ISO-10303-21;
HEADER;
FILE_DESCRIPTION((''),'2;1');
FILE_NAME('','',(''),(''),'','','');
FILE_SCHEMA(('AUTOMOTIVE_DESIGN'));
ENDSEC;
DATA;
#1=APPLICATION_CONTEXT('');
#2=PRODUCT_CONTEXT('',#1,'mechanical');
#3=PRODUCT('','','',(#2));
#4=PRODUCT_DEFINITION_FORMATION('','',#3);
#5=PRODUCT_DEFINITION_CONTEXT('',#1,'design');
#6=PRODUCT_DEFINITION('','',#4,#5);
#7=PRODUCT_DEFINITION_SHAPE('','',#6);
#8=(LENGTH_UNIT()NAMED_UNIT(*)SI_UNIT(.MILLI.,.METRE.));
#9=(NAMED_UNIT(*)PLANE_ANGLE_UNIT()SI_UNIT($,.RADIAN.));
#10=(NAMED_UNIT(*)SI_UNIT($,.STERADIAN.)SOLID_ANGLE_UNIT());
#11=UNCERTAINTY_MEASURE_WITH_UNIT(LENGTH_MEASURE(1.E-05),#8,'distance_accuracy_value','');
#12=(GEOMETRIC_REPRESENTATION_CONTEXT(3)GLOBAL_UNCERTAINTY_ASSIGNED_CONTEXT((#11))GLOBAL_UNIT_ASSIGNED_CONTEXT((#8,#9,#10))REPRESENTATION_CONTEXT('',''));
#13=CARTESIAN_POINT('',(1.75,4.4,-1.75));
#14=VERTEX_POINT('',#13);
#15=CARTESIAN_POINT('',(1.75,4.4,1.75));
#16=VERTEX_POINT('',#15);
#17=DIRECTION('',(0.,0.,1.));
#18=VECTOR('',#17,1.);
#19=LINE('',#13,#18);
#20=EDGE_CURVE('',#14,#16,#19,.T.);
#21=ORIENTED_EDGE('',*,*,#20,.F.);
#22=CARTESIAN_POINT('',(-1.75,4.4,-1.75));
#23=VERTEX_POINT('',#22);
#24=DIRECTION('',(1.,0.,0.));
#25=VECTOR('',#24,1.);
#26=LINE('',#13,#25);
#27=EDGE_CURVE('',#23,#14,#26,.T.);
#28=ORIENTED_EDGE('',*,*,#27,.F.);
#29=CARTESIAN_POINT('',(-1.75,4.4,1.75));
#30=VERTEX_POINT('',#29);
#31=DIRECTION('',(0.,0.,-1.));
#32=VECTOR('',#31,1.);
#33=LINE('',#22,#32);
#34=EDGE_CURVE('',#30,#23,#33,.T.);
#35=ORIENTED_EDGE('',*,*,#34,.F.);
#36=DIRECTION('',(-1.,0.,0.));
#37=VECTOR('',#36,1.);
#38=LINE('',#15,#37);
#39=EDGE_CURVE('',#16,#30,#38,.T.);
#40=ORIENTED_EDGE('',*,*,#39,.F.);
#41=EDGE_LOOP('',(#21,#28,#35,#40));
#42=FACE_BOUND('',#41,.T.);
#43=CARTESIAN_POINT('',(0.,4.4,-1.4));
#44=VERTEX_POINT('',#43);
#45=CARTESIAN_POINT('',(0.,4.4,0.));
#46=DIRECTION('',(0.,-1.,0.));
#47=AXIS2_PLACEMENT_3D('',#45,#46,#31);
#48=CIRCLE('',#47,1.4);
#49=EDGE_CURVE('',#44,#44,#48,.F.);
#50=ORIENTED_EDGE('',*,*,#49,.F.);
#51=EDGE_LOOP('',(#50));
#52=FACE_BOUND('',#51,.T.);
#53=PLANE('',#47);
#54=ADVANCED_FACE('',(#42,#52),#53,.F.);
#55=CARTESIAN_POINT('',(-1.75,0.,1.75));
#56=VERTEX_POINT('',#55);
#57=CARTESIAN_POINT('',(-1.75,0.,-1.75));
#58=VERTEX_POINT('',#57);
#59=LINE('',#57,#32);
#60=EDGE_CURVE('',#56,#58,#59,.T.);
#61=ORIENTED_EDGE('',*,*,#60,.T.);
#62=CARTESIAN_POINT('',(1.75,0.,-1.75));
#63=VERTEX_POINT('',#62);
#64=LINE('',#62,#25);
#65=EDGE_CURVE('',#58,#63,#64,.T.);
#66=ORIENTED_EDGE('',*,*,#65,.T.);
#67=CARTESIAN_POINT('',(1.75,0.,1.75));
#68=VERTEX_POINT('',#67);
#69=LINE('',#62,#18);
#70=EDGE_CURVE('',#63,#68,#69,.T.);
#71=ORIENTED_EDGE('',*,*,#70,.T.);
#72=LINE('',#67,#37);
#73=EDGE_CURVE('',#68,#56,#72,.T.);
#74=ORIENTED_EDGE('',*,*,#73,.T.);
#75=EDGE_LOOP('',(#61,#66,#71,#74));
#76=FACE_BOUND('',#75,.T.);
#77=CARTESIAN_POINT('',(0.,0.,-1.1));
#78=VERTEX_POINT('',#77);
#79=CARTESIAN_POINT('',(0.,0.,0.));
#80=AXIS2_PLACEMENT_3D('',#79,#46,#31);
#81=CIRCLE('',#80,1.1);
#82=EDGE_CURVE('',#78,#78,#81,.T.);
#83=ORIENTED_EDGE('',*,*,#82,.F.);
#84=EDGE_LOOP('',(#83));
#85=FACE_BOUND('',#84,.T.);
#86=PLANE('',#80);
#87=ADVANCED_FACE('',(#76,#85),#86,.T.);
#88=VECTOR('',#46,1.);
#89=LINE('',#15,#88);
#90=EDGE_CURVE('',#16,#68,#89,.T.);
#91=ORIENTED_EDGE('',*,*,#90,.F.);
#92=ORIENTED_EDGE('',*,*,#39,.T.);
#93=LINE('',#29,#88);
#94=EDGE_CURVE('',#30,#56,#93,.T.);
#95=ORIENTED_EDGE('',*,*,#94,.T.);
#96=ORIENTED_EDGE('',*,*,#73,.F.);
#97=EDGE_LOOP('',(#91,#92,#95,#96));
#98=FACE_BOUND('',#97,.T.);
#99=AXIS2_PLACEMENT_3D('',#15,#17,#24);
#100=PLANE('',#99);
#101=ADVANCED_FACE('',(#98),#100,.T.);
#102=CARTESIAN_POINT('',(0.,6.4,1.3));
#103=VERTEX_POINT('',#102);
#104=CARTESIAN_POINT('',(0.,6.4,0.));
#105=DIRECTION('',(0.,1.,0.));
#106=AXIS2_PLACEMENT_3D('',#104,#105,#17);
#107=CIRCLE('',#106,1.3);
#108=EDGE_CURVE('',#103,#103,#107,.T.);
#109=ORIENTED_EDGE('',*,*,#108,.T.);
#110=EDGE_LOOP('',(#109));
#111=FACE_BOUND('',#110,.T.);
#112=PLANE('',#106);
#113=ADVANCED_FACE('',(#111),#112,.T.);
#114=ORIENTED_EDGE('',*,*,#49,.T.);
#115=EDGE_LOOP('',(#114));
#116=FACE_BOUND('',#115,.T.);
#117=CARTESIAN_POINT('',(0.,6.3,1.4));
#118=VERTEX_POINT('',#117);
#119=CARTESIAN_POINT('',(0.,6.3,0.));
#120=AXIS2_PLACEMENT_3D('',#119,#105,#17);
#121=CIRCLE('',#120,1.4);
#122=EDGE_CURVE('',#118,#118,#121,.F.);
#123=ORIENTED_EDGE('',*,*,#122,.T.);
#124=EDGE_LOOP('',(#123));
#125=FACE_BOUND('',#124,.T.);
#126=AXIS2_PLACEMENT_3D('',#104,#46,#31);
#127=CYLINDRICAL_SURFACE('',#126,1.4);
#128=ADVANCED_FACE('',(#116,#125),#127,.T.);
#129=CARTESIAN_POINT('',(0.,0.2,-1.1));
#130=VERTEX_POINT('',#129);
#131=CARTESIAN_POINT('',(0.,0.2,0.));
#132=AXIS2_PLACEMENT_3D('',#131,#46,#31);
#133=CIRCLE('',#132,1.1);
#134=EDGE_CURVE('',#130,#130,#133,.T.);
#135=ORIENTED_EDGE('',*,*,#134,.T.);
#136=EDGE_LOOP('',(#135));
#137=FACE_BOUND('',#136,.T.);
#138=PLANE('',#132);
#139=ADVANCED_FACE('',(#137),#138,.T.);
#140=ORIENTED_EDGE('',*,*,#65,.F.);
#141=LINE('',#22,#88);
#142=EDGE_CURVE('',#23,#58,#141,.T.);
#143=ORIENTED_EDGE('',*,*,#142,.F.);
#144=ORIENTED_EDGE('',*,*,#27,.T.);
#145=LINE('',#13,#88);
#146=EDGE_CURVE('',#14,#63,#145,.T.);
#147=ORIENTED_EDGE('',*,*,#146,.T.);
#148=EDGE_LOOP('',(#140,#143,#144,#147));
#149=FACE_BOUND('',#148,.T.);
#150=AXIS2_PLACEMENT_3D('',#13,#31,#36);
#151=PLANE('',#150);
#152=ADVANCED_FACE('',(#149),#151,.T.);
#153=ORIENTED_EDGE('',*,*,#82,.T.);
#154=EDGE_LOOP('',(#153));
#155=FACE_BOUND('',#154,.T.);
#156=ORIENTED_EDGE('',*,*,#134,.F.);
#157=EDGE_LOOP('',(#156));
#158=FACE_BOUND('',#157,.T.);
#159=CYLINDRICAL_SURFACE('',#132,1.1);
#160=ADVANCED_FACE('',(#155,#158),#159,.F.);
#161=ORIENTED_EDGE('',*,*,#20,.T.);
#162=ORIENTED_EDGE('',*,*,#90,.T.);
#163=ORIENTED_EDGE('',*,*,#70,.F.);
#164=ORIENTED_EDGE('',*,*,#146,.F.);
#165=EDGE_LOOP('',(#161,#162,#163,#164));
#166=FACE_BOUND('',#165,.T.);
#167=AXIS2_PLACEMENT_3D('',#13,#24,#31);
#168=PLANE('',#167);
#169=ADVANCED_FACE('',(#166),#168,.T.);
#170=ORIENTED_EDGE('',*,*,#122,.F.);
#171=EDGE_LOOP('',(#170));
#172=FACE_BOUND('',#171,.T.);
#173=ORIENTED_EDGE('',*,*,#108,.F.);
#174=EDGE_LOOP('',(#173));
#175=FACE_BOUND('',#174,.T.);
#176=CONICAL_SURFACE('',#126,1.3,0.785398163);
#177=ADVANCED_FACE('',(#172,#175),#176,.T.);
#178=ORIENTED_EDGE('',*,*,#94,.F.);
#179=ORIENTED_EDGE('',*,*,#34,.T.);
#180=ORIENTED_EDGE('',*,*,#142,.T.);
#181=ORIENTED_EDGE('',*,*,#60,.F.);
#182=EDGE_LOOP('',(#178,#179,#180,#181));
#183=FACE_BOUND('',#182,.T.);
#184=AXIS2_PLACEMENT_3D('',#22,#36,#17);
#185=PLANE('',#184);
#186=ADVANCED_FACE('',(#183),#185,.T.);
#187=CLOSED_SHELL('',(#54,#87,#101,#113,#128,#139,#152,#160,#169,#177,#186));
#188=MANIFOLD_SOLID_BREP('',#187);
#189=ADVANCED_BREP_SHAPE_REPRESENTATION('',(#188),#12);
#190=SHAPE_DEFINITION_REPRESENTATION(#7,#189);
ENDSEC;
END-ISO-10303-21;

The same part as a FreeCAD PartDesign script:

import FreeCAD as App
import Part
import Sketcher
Q = App.Units.Quantity


def edges_at(feature, points):
    """Names of the edges that pass closest to the given points."""
    edges = feature.Shape.Edges
    near = lambda p: min(range(len(edges)), key=lambda i: edges[i].distToShape(Part.Vertex(*p))[0])
    return sorted({f"Edge{near(p) + 1}" for p in points})


def add_polygon(sketch, points):
    """Adds a closed chain of lines whose ends are joined by coincident constraints."""
    first, n = sketch.GeometryCount, len(points)
    for a, b in zip(points, points[1:] + points[:1]):
        sketch.addGeometry(Part.LineSegment(App.Vector(*a, 0), App.Vector(*b, 0)), False)
    for i in range(n):
        sketch.addConstraint(Sketcher.Constraint("Coincident", first + i, 2, first + (i + 1) % n, 1))

doc = App.newDocument("Part")
body = doc.addObject("PartDesign::Body", "Body")

# Sketch on XZ plane
sketch1 = body.newObject("Sketcher::SketchObject", "Sketch")
sketch1.AttachmentSupport = (doc.getObject("XZ_Plane"), [""])
sketch1.MapMode = "FlatFace"
add_polygon(sketch1, [(-1.5, -1.5), (-1.5, 1.5), (1.5, 1.5), (1.5, -1.5)])  # lines 0-3
sketch1.addConstraint([
    Sketcher.Constraint("Vertical", 0),
    Sketcher.Constraint("Horizontal", 1),
    Sketcher.Constraint("Vertical", 2),
    Sketcher.Constraint("Horizontal", 3),
    Sketcher.Constraint("Symmetric", 0, 2, 2, 2, -1, 1),
    Sketcher.Constraint("Equal", 3, 0),
    Sketcher.Constraint("DistanceX", 1, 1, 1, 2, Q("3 mm")),
])
pad1 = body.newObject("PartDesign::Pad", "Pad")
pad1.Profile = sketch1
pad1.Length = 4.4
pad1.Reversed = True

# Sketch on XZ plane
sketch2 = body.newObject("Sketcher::SketchObject", "Sketch001")
sketch2.AttachmentSupport = (doc.getObject("XZ_Plane"), [""])
sketch2.MapMode = "FlatFace"
sketch2.AttachmentOffset = App.Placement(App.Vector(0, 0, -4.4), App.Rotation())
sketch2.addGeometry(Part.Circle(App.Vector(0, 0, 0), App.Vector(0, 0, 1), 1.4), False)
sketch2.addConstraint([
    Sketcher.Constraint("Coincident", 0, 3, -1, 1),
    Sketcher.Constraint("Diameter", 0, Q("2.8 mm")),
])
pad2 = body.newObject("PartDesign::Pad", "Pad001")
pad2.Profile = sketch2
pad2.Length = 2
pad2.Reversed = True

# Sketch on XZ plane
sketch3 = body.newObject("Sketcher::SketchObject", "Sketch002")
sketch3.AttachmentSupport = (doc.getObject("XZ_Plane"), [""])
sketch3.MapMode = "FlatFace"
sketch3.addGeometry(Part.Circle(App.Vector(0, 0, 0), App.Vector(0, 0, 1), 1.1), False)
sketch3.addConstraint([
    Sketcher.Constraint("Coincident", 0, 3, -1, 1),
    Sketcher.Constraint("Diameter", 0, Q("2.2 mm")),
])
pocket1 = body.newObject("PartDesign::Pocket", "Pocket")
pocket1.Profile = sketch3
pocket1.Length = 0.2
doc.recompute()

chamfer = body.newObject("PartDesign::Chamfer", "Chamfer")
chamfer.Base = (pocket1, edges_at(pocket1, [(0, 6.4, 1.4)]))
chamfer.Size = 0.1

# Sketch on XZ plane
sketch4 = body.newObject("Sketcher::SketchObject", "Sketch003")
sketch4.AttachmentSupport = (doc.getObject("XZ_Plane"), [""])
sketch4.MapMode = "FlatFace"
add_polygon(sketch4, [(-1.75, 1.75), (-1.75, -1.75), (1.75, -1.75), (1.75, 1.75)])  # lines 0-3
add_polygon(sketch4, [(1.5, -1.5), (-1.5, -1.5), (-1.5, 1.5), (1.5, 1.5)])  # lines 4-7
sketch4.addConstraint([
    Sketcher.Constraint("Vertical", 0),
    Sketcher.Constraint("Horizontal", 1),
    Sketcher.Constraint("Vertical", 2),
    Sketcher.Constraint("Horizontal", 3),
    Sketcher.Constraint("Horizontal", 4),
    Sketcher.Constraint("Vertical", 5),
    Sketcher.Constraint("Horizontal", 6),
    Sketcher.Constraint("Vertical", 7),
    Sketcher.Constraint("Symmetric", 0, 2, 2, 2, -1, 1),
    Sketcher.Constraint("Symmetric", 4, 2, 6, 2, -1, 1),
    Sketcher.Constraint("Equal", 3, 0),
    Sketcher.Constraint("Equal", 6, 5),
    Sketcher.Constraint("DistanceX", 4, 2, 4, 1, Q("3 mm")),
    Sketcher.Constraint("DistanceX", 1, 1, 1, 2, Q("3.5 mm")),
])
pad3 = body.newObject("PartDesign::Pad", "Pad002")
pad3.Profile = sketch4
pad3.Length = 4.4
pad3.Reversed = True

doc.recompute()
